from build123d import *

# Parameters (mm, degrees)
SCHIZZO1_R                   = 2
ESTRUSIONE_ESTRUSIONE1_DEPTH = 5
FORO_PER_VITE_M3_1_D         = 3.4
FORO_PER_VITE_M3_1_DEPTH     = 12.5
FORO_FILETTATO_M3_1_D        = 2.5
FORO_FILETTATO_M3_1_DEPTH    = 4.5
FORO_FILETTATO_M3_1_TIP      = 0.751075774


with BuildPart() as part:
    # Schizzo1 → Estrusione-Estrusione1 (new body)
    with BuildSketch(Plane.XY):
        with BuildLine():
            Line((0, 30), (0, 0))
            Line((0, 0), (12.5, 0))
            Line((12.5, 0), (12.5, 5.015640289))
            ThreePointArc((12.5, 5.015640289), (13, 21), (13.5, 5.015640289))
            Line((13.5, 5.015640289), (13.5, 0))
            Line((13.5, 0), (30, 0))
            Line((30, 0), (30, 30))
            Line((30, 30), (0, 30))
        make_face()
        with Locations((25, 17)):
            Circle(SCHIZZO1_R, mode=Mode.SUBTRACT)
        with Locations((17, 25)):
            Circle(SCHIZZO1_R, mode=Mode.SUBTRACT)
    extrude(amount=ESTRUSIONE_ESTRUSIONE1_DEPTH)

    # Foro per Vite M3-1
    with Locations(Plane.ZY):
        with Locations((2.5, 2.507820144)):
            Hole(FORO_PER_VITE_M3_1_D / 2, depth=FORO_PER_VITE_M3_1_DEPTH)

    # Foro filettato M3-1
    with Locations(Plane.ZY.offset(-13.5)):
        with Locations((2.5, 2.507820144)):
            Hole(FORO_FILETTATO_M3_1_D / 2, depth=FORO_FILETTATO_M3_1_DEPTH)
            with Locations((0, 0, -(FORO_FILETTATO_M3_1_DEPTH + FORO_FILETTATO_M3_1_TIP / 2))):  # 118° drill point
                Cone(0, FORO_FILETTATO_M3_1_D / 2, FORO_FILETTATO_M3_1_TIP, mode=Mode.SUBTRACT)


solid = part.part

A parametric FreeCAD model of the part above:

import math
import FreeCAD as App
import Part
import Sketcher
from FreeCAD import Vector

doc = App.newDocument("Part")
params = doc.addObject("Spreadsheet::Sheet", "Params")
for row, (alias, value) in enumerate([
    ("sketch1_diameter", "4 mm"),
    ("sketch1_radius", "8 mm"),
    ("sketch1_width", "30 mm"),
    ("sketch1_width2", "12.5 mm"),
    ("sketch1_width3", "16.5 mm"),
    ("pad1_length", "5 mm"),
    ("sketch2_diameter", "3.4 mm"),
    ("hole_diameter", "3.4 mm"),
    ("hole_depth", "12.5 mm"),
    ("sketch3_diameter", "2.5 mm"),
    ("hole2_diameter", "2.5 mm"),
    ("hole2_depth", "4.5 mm"),
], start=1):
    params.set(f"A{row}", alias)
    params.set(f"B{row}", "=" + value)
    params.setAlias(f"B{row}", alias)

body = doc.addObject("PartDesign::Body", "Body")

# Sketch on XY plane
sketch1 = body.newObject("Sketcher::SketchObject", "Sketch")
sketch1.AttachmentSupport = (doc.getObject("XY_Plane"), [""])
sketch1.MapMode = "FlatFace"
sketch1.addGeometry([
    Part.LineSegment(Vector(0, 30, 0), Vector(0, 0, 0)),  # 0
    Part.LineSegment(Vector(0, 0, 0), Vector(12.5, 0, 0)),  # 1
    Part.LineSegment(Vector(12.5, 0, 0), Vector(12.5, 5, 0)),  # 2
    Part.ArcOfCircle(Part.Circle(Vector(13, 13, 0), Vector(0, 0, 1), 8), math.radians(-86), math.radians(266)),  # 3
    Part.LineSegment(Vector(13.5, 5, 0), Vector(13.5, 0, 0)),  # 4
    Part.LineSegment(Vector(13.5, 0, 0), Vector(30, 0, 0)),  # 5
    Part.LineSegment(Vector(30, 0, 0), Vector(30, 30, 0)),  # 6
    Part.LineSegment(Vector(30, 30, 0), Vector(0, 30, 0)),  # 7
    Part.Circle(Vector(25, 17, 0), Vector(0, 0, 1), 2),  # 8
    Part.Circle(Vector(17, 25, 0), Vector(0, 0, 1), 2),  # 9
], False)
sketch1.addConstraint([
    Sketcher.Constraint("Coincident", 0, 2, 1, 1),
    Sketcher.Constraint("Coincident", 1, 2, 2, 1),
    Sketcher.Constraint("Coincident", 2, 2, 3, 2),
    Sketcher.Constraint("Coincident", 3, 1, 4, 1),
    Sketcher.Constraint("Coincident", 4, 2, 5, 1),
    Sketcher.Constraint("Coincident", 5, 2, 6, 1),
    Sketcher.Constraint("Coincident", 6, 2, 7, 1),
    Sketcher.Constraint("Coincident", 7, 2, 0, 1),
    Sketcher.Constraint("Vertical", 0),
    Sketcher.Constraint("Horizontal", 1),
    Sketcher.Constraint("Vertical", 2),
    Sketcher.Constraint("Vertical", 4),
    Sketcher.Constraint("Horizontal", 5),
    Sketcher.Constraint("Vertical", 6),
    Sketcher.Constraint("Horizontal", 7),
    Sketcher.Constraint("Coincident", 0, 2, -1, 1),
    Sketcher.Constraint("Equal", 8, 9),
    Sketcher.Constraint("PointOnObject", 4, 2, -1),
    Sketcher.Constraint("Horizontal", 2, 2, 3, 1),
    Sketcher.Constraint("Equal", 7, 0),
    Sketcher.Constraint("Diameter", 8, 4.0),
    Sketcher.Constraint("Radius", 3, 8.0),
    Sketcher.Constraint("DistanceX", 7, 2, 7, 1, 30.0),
    Sketcher.Constraint("DistanceX", 1, 1, 1, 2, 12.5),
    Sketcher.Constraint("DistanceX", 5, 1, 5, 2, 16.5),
    Sketcher.Constraint("DistanceY", -1, 1, 3, 3, 13.0),
    Sketcher.Constraint("DistanceX", -1, 1, 8, 3, 25.0),
    Sketcher.Constraint("DistanceY", -1, 1, 8, 3, 17.0),
    Sketcher.Constraint("DistanceX", -1, 1, 9, 3, 17.0),
    Sketcher.Constraint("DistanceY", -1, 1, 9, 3, 25.0),
])
sketch1.setExpression("Constraints[20]", "Params.sketch1_diameter")
sketch1.setExpression("Constraints[21]", "Params.sketch1_radius")
sketch1.setExpression("Constraints[22]", "Params.sketch1_width")
sketch1.setExpression("Constraints[23]", "Params.sketch1_width2")
sketch1.setExpression("Constraints[24]", "Params.sketch1_width3")
pad1 = body.newObject("PartDesign::Pad", "Pad")
pad1.Profile = sketch1
pad1.setExpression("Length", "Params.pad1_length")

# Sketch on YZ plane
sketch2 = body.newObject("Sketcher::SketchObject", "Sketch001")
sketch2.AttachmentSupport = (doc.getObject("YZ_Plane"), [""])
sketch2.MapMode = "FlatFace"
sketch2.addGeometry(Part.Circle(Vector(2.5, 2.5, 0), Vector(0, 0, 1), 1.7), False)
sketch2.addConstraint([
    Sketcher.Constraint("Diameter", 0, 3.4),
    Sketcher.Constraint("DistanceY", -1, 1, 0, 3, 2.5),
    Sketcher.Constraint("DistanceX", -1, 1, 0, 3, 2.50782),
])
sketch2.setExpression("Constraints[0]", "Params.sketch2_diameter")
doc.recompute()
hole = body.newObject("PartDesign::Hole", "Hole")
hole.Profile = sketch2
hole.ThreadType = "None"
hole.setExpression("Diameter", "Params.hole_diameter")
hole.DepthType = "Dimension"
hole.setExpression("Depth", "Params.hole_depth")
hole.DrillPoint = "Flat"
hole.Reversed = True

# Sketch on YZ plane
sketch3 = body.newObject("Sketcher::SketchObject", "Sketch002")
sketch3.AttachmentSupport = (doc.getObject("YZ_Plane"), [""])
sketch3.MapMode = "FlatFace"
sketch3.AttachmentOffset = App.Placement(Vector(0, 0, 13.5), App.Rotation())
sketch3.addGeometry(Part.Circle(Vector(2.5, 2.5, 0), Vector(0, 0, 1), 1.2), False)
sketch3.addConstraint([
    Sketcher.Constraint("Diameter", 0, 2.5),
    Sketcher.Constraint("DistanceY", -1, 1, 0, 3, 2.5),
    Sketcher.Constraint("DistanceX", -1, 1, 0, 3, 2.50782),
])
sketch3.setExpression("Constraints[0]", "Params.sketch3_diameter")
doc.recompute()
hole2 = body.newObject("PartDesign::Hole", "Hole001")
hole2.Profile = sketch3
hole2.ThreadType = "None"
hole2.setExpression("Diameter", "Params.hole2_diameter")
hole2.DepthType = "Dimension"
hole2.setExpression("Depth", "Params.hole2_depth")
hole2.DrillPoint = "Angled"
hole2.DrillPointAngle = 118
hole2.Reversed = True

doc.recompute()
